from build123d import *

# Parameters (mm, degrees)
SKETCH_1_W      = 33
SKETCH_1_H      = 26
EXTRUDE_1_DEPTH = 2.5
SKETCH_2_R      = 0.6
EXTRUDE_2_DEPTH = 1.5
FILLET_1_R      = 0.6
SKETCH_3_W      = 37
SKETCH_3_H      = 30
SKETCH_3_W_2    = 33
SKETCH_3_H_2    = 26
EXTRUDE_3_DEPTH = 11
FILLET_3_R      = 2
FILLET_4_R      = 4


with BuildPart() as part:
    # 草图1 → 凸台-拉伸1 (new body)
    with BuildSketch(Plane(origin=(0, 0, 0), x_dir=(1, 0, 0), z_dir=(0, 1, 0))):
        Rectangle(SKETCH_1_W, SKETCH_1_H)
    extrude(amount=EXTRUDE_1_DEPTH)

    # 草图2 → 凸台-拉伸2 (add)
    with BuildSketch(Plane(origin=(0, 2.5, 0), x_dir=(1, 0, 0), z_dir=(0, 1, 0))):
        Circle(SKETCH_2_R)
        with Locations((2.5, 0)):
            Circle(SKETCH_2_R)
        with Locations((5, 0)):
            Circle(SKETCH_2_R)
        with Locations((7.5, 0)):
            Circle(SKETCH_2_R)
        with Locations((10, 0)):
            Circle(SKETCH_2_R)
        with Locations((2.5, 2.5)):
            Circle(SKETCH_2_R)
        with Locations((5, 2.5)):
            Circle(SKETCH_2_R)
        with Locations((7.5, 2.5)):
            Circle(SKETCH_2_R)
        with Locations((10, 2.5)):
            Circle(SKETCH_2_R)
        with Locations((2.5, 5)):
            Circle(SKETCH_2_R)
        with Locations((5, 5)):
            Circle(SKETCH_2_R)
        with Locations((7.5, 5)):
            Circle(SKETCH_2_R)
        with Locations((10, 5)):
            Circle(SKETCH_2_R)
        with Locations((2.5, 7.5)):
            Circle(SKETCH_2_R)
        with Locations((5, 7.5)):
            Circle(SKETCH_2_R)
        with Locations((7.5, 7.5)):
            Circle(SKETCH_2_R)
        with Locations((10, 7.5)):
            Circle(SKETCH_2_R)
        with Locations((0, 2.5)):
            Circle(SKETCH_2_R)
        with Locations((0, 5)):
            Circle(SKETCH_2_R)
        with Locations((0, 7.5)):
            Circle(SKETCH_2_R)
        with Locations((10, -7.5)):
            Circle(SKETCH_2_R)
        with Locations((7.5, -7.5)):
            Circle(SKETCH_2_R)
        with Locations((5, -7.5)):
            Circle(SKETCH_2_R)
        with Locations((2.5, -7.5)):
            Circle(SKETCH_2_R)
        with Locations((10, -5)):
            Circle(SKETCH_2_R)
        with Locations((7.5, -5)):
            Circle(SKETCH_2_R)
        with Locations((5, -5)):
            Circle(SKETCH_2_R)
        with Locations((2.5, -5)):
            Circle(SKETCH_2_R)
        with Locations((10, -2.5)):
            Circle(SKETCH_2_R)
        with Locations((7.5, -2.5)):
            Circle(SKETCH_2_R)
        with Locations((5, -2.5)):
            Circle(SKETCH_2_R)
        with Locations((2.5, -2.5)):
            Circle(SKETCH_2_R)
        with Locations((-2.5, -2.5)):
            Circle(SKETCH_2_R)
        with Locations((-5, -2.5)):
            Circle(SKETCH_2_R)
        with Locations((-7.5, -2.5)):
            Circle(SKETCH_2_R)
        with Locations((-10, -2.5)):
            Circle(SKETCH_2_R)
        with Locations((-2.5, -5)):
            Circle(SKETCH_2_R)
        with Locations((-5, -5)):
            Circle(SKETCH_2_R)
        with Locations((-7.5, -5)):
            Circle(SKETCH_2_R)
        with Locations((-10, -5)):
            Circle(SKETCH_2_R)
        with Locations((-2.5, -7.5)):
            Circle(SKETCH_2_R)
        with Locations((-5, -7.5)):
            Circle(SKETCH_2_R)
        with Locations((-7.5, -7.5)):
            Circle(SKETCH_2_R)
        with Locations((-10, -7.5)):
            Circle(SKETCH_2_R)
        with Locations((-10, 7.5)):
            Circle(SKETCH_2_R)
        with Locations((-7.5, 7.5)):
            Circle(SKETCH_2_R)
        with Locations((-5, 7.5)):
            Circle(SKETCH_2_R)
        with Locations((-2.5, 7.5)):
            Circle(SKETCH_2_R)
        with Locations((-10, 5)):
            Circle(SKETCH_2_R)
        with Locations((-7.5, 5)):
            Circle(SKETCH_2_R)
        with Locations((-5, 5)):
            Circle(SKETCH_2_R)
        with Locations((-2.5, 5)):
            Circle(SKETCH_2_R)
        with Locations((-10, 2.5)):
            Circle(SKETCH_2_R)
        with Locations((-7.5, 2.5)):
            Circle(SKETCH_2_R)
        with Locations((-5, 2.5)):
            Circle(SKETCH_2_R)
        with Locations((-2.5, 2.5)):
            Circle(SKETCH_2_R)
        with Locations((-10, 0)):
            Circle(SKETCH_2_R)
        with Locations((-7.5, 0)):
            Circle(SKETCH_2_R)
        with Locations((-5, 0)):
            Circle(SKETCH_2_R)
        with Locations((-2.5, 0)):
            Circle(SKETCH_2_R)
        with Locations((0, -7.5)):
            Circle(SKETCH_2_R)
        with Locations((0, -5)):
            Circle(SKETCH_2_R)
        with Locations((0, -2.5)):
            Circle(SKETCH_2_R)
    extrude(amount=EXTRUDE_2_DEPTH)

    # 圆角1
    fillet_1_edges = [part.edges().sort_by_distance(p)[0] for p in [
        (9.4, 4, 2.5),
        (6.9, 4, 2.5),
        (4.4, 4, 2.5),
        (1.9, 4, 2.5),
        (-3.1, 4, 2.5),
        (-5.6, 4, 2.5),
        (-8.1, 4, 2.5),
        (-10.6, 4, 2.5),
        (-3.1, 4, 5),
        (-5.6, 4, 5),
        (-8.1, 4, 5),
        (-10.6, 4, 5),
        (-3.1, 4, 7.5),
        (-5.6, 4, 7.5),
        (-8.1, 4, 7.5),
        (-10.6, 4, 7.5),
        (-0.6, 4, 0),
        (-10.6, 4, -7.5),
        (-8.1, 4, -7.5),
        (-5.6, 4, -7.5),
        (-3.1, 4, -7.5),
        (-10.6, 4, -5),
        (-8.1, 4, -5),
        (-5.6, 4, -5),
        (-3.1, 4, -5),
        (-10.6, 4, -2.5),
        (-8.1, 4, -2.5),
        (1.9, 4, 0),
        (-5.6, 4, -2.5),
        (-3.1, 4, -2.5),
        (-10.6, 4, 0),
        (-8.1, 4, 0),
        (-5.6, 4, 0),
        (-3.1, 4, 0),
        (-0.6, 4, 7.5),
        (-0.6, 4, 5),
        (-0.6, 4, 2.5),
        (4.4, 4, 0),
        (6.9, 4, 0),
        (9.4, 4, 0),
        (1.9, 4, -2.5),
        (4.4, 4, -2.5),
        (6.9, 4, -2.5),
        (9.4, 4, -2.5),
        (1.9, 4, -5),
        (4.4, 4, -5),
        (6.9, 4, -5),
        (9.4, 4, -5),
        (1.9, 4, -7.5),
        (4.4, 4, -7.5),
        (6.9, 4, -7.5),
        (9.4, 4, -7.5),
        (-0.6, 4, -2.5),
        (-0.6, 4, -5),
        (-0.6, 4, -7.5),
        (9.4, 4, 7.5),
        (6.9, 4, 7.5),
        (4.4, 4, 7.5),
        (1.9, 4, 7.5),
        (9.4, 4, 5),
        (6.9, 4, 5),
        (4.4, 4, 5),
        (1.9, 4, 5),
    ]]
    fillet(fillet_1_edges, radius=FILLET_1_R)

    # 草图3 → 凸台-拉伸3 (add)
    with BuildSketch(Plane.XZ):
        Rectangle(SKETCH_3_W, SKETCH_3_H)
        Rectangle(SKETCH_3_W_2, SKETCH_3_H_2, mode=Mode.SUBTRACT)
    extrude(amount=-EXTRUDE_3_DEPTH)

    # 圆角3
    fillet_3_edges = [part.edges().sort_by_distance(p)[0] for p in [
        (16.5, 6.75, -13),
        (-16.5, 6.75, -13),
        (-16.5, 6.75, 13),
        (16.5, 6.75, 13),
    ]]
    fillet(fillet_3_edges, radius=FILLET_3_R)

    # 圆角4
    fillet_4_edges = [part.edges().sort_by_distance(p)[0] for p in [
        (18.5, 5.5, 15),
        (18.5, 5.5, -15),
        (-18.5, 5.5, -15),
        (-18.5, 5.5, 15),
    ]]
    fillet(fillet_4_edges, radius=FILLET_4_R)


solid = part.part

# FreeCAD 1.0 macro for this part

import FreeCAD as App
import Part
import Sketcher
Q = App.Units.Quantity


def edges_at(feature, points):
    """Names of the edges that pass closest to the given points."""
    edges = feature.Shape.Edges
    near = lambda p: min(range(len(edges)), key=lambda i: edges[i].distToShape(Part.Vertex(*p))[0])
    return sorted({f"Edge{near(p) + 1}" for p in points})

doc = App.newDocument("Part")
body = doc.addObject("PartDesign::Body", "Body")

sketch1 = body.newObject("Sketcher::SketchObject", "Sketch")
sketch1.AttachmentSupport = (doc.getObject("XZ_Plane"), [""])
sketch1.MapMode = "FlatFace"
sketch1.addGeometry([
    Part.LineSegment(App.Vector(-16.5, -13, 0), App.Vector(-16.5, 13, 0)),
    Part.LineSegment(App.Vector(-16.5, 13, 0), App.Vector(16.5, 13, 0)),
    Part.LineSegment(App.Vector(16.5, 13, 0), App.Vector(16.5, -13, 0)),
    Part.LineSegment(App.Vector(16.5, -13, 0), App.Vector(-16.5, -13, 0)),
], False)
sketch1.addConstraint([
    Sketcher.Constraint("Coincident", 0, 2, 1, 1),
    Sketcher.Constraint("Coincident", 1, 2, 2, 1),
    Sketcher.Constraint("Coincident", 2, 2, 3, 1),
    Sketcher.Constraint("Coincident", 3, 2, 0, 1),
    Sketcher.Constraint("Vertical", 0),
    Sketcher.Constraint("Horizontal", 1),
    Sketcher.Constraint("Vertical", 2),
    Sketcher.Constraint("Horizontal", 3),
    Sketcher.Constraint("Symmetric", 0, 2, 2, 2, -1, 1),
    Sketcher.Constraint("DistanceX", 1, 1, 1, 2, Q("33 mm")),
    Sketcher.Constraint("DistanceY", 0, 1, 0, 2, Q("26 mm")),
])
pad1 = body.newObject("PartDesign::Pad", "Pad")
pad1.Profile = sketch1
pad1.Length = 2.5
pad1.Reversed = True

sketch2 = body.newObject("Sketcher::SketchObject", "Sketch001")
sketch2.AttachmentSupport = (doc.getObject("XZ_Plane"), [""])
sketch2.MapMode = "FlatFace"
sketch2.AttachmentOffset = App.Placement(App.Vector(0, 0, -2.5), App.Rotation())
sketch2.addGeometry([
    Part.Circle(App.Vector(0, 0, 0), App.Vector(0, 0, 1), 0.6),
    Part.Circle(App.Vector(2.5, 0, 0), App.Vector(0, 0, 1), 0.6),
    Part.Circle(App.Vector(5, 0, 0), App.Vector(0, 0, 1), 0.6),
    Part.Circle(App.Vector(7.5, 0, 0), App.Vector(0, 0, 1), 0.6),
    Part.Circle(App.Vector(10, 0, 0), App.Vector(0, 0, 1), 0.6),
    Part.Circle(App.Vector(2.5, -2.5, 0), App.Vector(0, 0, 1), 0.6),
    Part.Circle(App.Vector(5, -2.5, 0), App.Vector(0, 0, 1), 0.6),
    Part.Circle(App.Vector(7.5, -2.5, 0), App.Vector(0, 0, 1), 0.6),
    Part.Circle(App.Vector(10, -2.5, 0), App.Vector(0, 0, 1), 0.6),
    Part.Circle(App.Vector(2.5, -5, 0), App.Vector(0, 0, 1), 0.6),
    Part.Circle(App.Vector(5, -5, 0), App.Vector(0, 0, 1), 0.6),
    Part.Circle(App.Vector(7.5, -5, 0), App.Vector(0, 0, 1), 0.6),
    Part.Circle(App.Vector(10, -5, 0), App.Vector(0, 0, 1), 0.6),
    Part.Circle(App.Vector(2.5, -7.5, 0), App.Vector(0, 0, 1), 0.6),
    Part.Circle(App.Vector(5, -7.5, 0), App.Vector(0, 0, 1), 0.6),
    Part.Circle(App.Vector(7.5, -7.5, 0), App.Vector(0, 0, 1), 0.6),
    Part.Circle(App.Vector(10, -7.5, 0), App.Vector(0, 0, 1), 0.6),
    Part.Circle(App.Vector(0, -2.5, 0), App.Vector(0, 0, 1), 0.6),
    Part.Circle(App.Vector(0, -5, 0), App.Vector(0, 0, 1), 0.6),
    Part.Circle(App.Vector(0, -7.5, 0), App.Vector(0, 0, 1), 0.6),
    Part.Circle(App.Vector(10, 7.5, 0), App.Vector(0, 0, 1), 0.6),
    Part.Circle(App.Vector(7.5, 7.5, 0), App.Vector(0, 0, 1), 0.6),
    Part.Circle(App.Vector(5, 7.5, 0), App.Vector(0, 0, 1), 0.6),
    Part.Circle(App.Vector(2.5, 7.5, 0), App.Vector(0, 0, 1), 0.6),
    Part.Circle(App.Vector(10, 5, 0), App.Vector(0, 0, 1), 0.6),
    Part.Circle(App.Vector(7.5, 5, 0), App.Vector(0, 0, 1), 0.6),
    Part.Circle(App.Vector(5, 5, 0), App.Vector(0, 0, 1), 0.6),
    Part.Circle(App.Vector(2.5, 5, 0), App.Vector(0, 0, 1), 0.6),
    Part.Circle(App.Vector(10, 2.5, 0), App.Vector(0, 0, 1), 0.6),
    Part.Circle(App.Vector(7.5, 2.5, 0), App.Vector(0, 0, 1), 0.6),
    Part.Circle(App.Vector(5, 2.5, 0), App.Vector(0, 0, 1), 0.6),
    Part.Circle(App.Vector(2.5, 2.5, 0), App.Vector(0, 0, 1), 0.6),
    Part.Circle(App.Vector(-2.5, 2.5, 0), App.Vector(0, 0, 1), 0.6),
    Part.Circle(App.Vector(-5, 2.5, 0), App.Vector(0, 0, 1), 0.6),
    Part.Circle(App.Vector(-7.5, 2.5, 0), App.Vector(0, 0, 1), 0.6),
    Part.Circle(App.Vector(-10, 2.5, 0), App.Vector(0, 0, 1), 0.6),
    Part.Circle(App.Vector(-2.5, 5, 0), App.Vector(0, 0, 1), 0.6),
    Part.Circle(App.Vector(-5, 5, 0), App.Vector(0, 0, 1), 0.6),
    Part.Circle(App.Vector(-7.5, 5, 0), App.Vector(0, 0, 1), 0.6),
    Part.Circle(App.Vector(-10, 5, 0), App.Vector(0, 0, 1), 0.6),
    Part.Circle(App.Vector(-2.5, 7.5, 0), App.Vector(0, 0, 1), 0.6),
    Part.Circle(App.Vector(-5, 7.5, 0), App.Vector(0, 0, 1), 0.6),
    Part.Circle(App.Vector(-7.5, 7.5, 0), App.Vector(0, 0, 1), 0.6),
    Part.Circle(App.Vector(-10, 7.5, 0), App.Vector(0, 0, 1), 0.6),
    Part.Circle(App.Vector(-10, -7.5, 0), App.Vector(0, 0, 1), 0.6),
    Part.Circle(App.Vector(-7.5, -7.5, 0), App.Vector(0, 0, 1), 0.6),
    Part.Circle(App.Vector(-5, -7.5, 0), App.Vector(0, 0, 1), 0.6),
    Part.Circle(App.Vector(-2.5, -7.5, 0), App.Vector(0, 0, 1), 0.6),
    Part.Circle(App.Vector(-10, -5, 0), App.Vector(0, 0, 1), 0.6),
    Part.Circle(App.Vector(-7.5, -5, 0), App.Vector(0, 0, 1), 0.6),
    Part.Circle(App.Vector(-5, -5, 0), App.Vector(0, 0, 1), 0.6),
    Part.Circle(App.Vector(-2.5, -5, 0), App.Vector(0, 0, 1), 0.6),
    Part.Circle(App.Vector(-10, -2.5, 0), App.Vector(0, 0, 1), 0.6),
    Part.Circle(App.Vector(-7.5, -2.5, 0), App.Vector(0, 0, 1), 0.6),
    Part.Circle(App.Vector(-5, -2.5, 0), App.Vector(0, 0, 1), 0.6),
    Part.Circle(App.Vector(-2.5, -2.5, 0), App.Vector(0, 0, 1), 0.6),
    Part.Circle(App.Vector(-10, 0, 0), App.Vector(0, 0, 1), 0.6),
    Part.Circle(App.Vector(-7.5, 0, 0), App.Vector(0, 0, 1), 0.6),
    Part.Circle(App.Vector(-5, 0, 0), App.Vector(0, 0, 1), 0.6),
    Part.Circle(App.Vector(-2.5, 0, 0), App.Vector(0, 0, 1), 0.6),
    Part.Circle(App.Vector(0, 7.5, 0), App.Vector(0, 0, 1), 0.6),
    Part.Circle(App.Vector(0, 5, 0), App.Vector(0, 0, 1), 0.6),
    Part.Circle(App.Vector(0, 2.5, 0), App.Vector(0, 0, 1), 0.6),
], False)
sketch2.addConstraint([
    Sketcher.Constraint("Coincident", 0, 3, -1, 1),
    Sketcher.Constraint("Equal", 0, 1),
    Sketcher.Constraint("Equal", 1, 2),
    Sketcher.Constraint("Equal", 2, 3),
    Sketcher.Constraint("Equal", 3, 4),
    Sketcher.Constraint("Equal", 4, 5),
    Sketcher.Constraint("Equal", 5, 6),
    Sketcher.Constraint("Equal", 6, 7),
    Sketcher.Constraint("Equal", 7, 8),
    Sketcher.Constraint("Equal", 8, 9),
    Sketcher.Constraint("Equal", 9, 10),
    Sketcher.Constraint("Equal", 10, 11),
    Sketcher.Constraint("Equal", 11, 12),
    Sketcher.Constraint("Equal", 12, 13),
    Sketcher.Constraint("Equal", 13, 14),
    Sketcher.Constraint("Equal", 14, 15),
    Sketcher.Constraint("Equal", 15, 16),
    Sketcher.Constraint("Equal", 16, 17),
    Sketcher.Constraint("Equal", 17, 18),
    Sketcher.Constraint("Equal", 18, 19),
    Sketcher.Constraint("Equal", 19, 20),
    Sketcher.Constraint("Equal", 20, 21),
    Sketcher.Constraint("Equal", 21, 22),
    Sketcher.Constraint("Equal", 22, 23),
    Sketcher.Constraint("Equal", 23, 24),
    Sketcher.Constraint("Equal", 24, 25),
    Sketcher.Constraint("Equal", 25, 26),
    Sketcher.Constraint("Equal", 26, 27),
    Sketcher.Constraint("Equal", 27, 28),
    Sketcher.Constraint("Equal", 28, 29),
    Sketcher.Constraint("Equal", 29, 30),
    Sketcher.Constraint("Equal", 30, 31),
    Sketcher.Constraint("Equal", 31, 32),
    Sketcher.Constraint("Equal", 32, 33),
    Sketcher.Constraint("Equal", 33, 34),
    Sketcher.Constraint("Equal", 34, 35),
    Sketcher.Constraint("Equal", 35, 36),
    Sketcher.Constraint("Equal", 36, 37),
    Sketcher.Constraint("Equal", 37, 38),
    Sketcher.Constraint("Equal", 38, 39),
    Sketcher.Constraint("Equal", 39, 40),
    Sketcher.Constraint("Equal", 40, 41),
    Sketcher.Constraint("Equal", 41, 42),
    Sketcher.Constraint("Equal", 42, 43),
    Sketcher.Constraint("Equal", 43, 44),
    Sketcher.Constraint("Equal", 44, 45),
    Sketcher.Constraint("Equal", 45, 46),
    Sketcher.Constraint("Equal", 46, 47),
    Sketcher.Constraint("Equal", 47, 48),
    Sketcher.Constraint("Equal", 48, 49),
    Sketcher.Constraint("Equal", 49, 50),
    Sketcher.Constraint("Equal", 50, 51),
    Sketcher.Constraint("Equal", 51, 52),
    Sketcher.Constraint("Equal", 52, 53),
    Sketcher.Constraint("Equal", 53, 54),
    Sketcher.Constraint("Equal", 54, 55),
    Sketcher.Constraint("Equal", 55, 56),
    Sketcher.Constraint("Equal", 56, 57),
    Sketcher.Constraint("Equal", 57, 58),
    Sketcher.Constraint("Equal", 58, 59),
    Sketcher.Constraint("Equal", 59, 60),
    Sketcher.Constraint("Equal", 60, 61),
    Sketcher.Constraint("Equal", 61, 62),
    Sketcher.Constraint("Symmetric", 5, 3, 32, 3, -1, 1),
    Sketcher.Constraint("Symmetric", 6, 3, 33, 3, -1, 1),
    Sketcher.Constraint("Symmetric", 7, 3, 34, 3, -1, 1),
    Sketcher.Constraint("Symmetric", 8, 3, 35, 3, -1, 1),
    Sketcher.Constraint("Symmetric", 9, 3, 36, 3, -1, 1),
    Sketcher.Constraint("Symmetric", 10, 3, 37, 3, -1, 1),
    Sketcher.Constraint("Symmetric", 11, 3, 38, 3, -1, 1),
    Sketcher.Constraint("Symmetric", 12, 3, 39, 3, -1, 1),
    Sketcher.Constraint("Symmetric", 13, 3, 40, 3, -1, 1),
    Sketcher.Constraint("Symmetric", 14, 3, 41, 3, -1, 1),
    Sketcher.Constraint("Symmetric", 15, 3, 42, 3, -1, 1),
    Sketcher.Constraint("Symmetric", 16, 3, 43, 3, -1, 1),
    Sketcher.Constraint("Symmetric", 20, 3, 44, 3, -1, 1),
    Sketcher.Constraint("Symmetric", 21, 3, 45, 3, -1, 1),
    Sketcher.Constraint("Symmetric", 22, 3, 46, 3, -1, 1),
    Sketcher.Constraint("Symmetric", 23, 3, 47, 3, -1, 1),
    Sketcher.Constraint("Symmetric", 24, 3, 48, 3, -1, 1),
    Sketcher.Constraint("Symmetric", 25, 3, 49, 3, -1, 1),
    Sketcher.Constraint("Symmetric", 26, 3, 50, 3, -1, 1),
    Sketcher.Constraint("Symmetric", 27, 3, 51, 3, -1, 1),
    Sketcher.Constraint("Symmetric", 28, 3, 52, 3, -1, 1),
    Sketcher.Constraint("Symmetric", 29, 3, 53, 3, -1, 1),
    Sketcher.Constraint("Symmetric", 30, 3, 54, 3, -1, 1),
    Sketcher.Constraint("Symmetric", 31, 3, 55, 3, -1, 1),
    Sketcher.Constraint("Symmetric", 4, 3, 56, 3, -1, 1),
    Sketcher.Constraint("Symmetric", 3, 3, 57, 3, -1, 1),
    Sketcher.Constraint("Symmetric", 2, 3, 58, 3, -1, 1),
    Sketcher.Constraint("Symmetric", 1, 3, 59, 3, -1, 1),
    Sketcher.Constraint("Symmetric", 19, 3, 60, 3, -1, 1),
    Sketcher.Constraint("Symmetric", 18, 3, 61, 3, -1, 1),
    Sketcher.Constraint("Symmetric", 17, 3, 62, 3, -1, 1),
    Sketcher.Constraint("Symmetric", 31, 3, 32, 3, -2),
    Sketcher.Constraint("Symmetric", 30, 3, 33, 3, -2),
    Sketcher.Constraint("Symmetric", 29, 3, 34, 3, -2),
    Sketcher.Constraint("Symmetric", 28, 3, 35, 3, -2),
    Sketcher.Constraint("Symmetric", 27, 3, 36, 3, -2),
    Sketcher.Constraint("Symmetric", 26, 3, 37, 3, -2),
    Sketcher.Constraint("Symmetric", 25, 3, 38, 3, -2),
    Sketcher.Constraint("Symmetric", 24, 3, 39, 3, -2),
    Sketcher.Constraint("Symmetric", 23, 3, 40, 3, -2),
    Sketcher.Constraint("Symmetric", 22, 3, 41, 3, -2),
    Sketcher.Constraint("Symmetric", 21, 3, 42, 3, -2),
    Sketcher.Constraint("Symmetric", 20, 3, 43, 3, -2),
    Sketcher.Constraint("PointOnObject", 1, 3, -1),
    Sketcher.Constraint("PointOnObject", 2, 3, -1),
    Sketcher.Constraint("PointOnObject", 3, 3, -1),
    Sketcher.Constraint("PointOnObject", 4, 3, -1),
    Sketcher.Constraint("PointOnObject", 17, 3, -2),
    Sketcher.Constraint("PointOnObject", 18, 3, -2),
    Sketcher.Constraint("PointOnObject", 19, 3, -2),
    Sketcher.Constraint("Horizontal", 5, 3, 6, 3),
    Sketcher.Constraint("Horizontal", 6, 3, 7, 3),
    Sketcher.Constraint("Horizontal", 7, 3, 8, 3),
    Sketcher.Constraint("Horizontal", 9, 3, 10, 3),
    Sketcher.Constraint("Horizontal", 10, 3, 11, 3),
    Sketcher.Constraint("Horizontal", 11, 3, 12, 3),
    Sketcher.Constraint("Horizontal", 13, 3, 14, 3),
    Sketcher.Constraint("Horizontal", 14, 3, 15, 3),
    Sketcher.Constraint("Horizontal", 15, 3, 16, 3),
    Sketcher.Constraint("Horizontal", 8, 3, 17, 3),
    Sketcher.Constraint("Horizontal", 12, 3, 18, 3),
    Sketcher.Constraint("Horizontal", 16, 3, 19, 3),
    Sketcher.Constraint("Vertical", 1, 3, 5, 3),
    Sketcher.Constraint("Vertical", 2, 3, 6, 3),
    Sketcher.Constraint("Vertical", 3, 3, 7, 3),
    Sketcher.Constraint("Vertical", 4, 3, 8, 3),
    Sketcher.Constraint("Vertical", 5, 3, 9, 3),
    Sketcher.Constraint("Vertical", 6, 3, 10, 3),
    Sketcher.Constraint("Vertical", 7, 3, 11, 3),
    Sketcher.Constraint("Vertical", 8, 3, 12, 3),
    Sketcher.Constraint("Vertical", 9, 3, 13, 3),
    Sketcher.Constraint("Vertical", 10, 3, 14, 3),
    Sketcher.Constraint("Vertical", 11, 3, 15, 3),
    Sketcher.Constraint("Vertical", 12, 3, 16, 3),
    Sketcher.Constraint("Diameter", 0, Q("1.2 mm")),
    Sketcher.Constraint("DistanceX", -1, 1, 2, 3, Q("5 mm")),
    Sketcher.Constraint("DistanceX", -1, 1, 4, 3, Q("10 mm")),
    Sketcher.Constraint("DistanceY", 9, 3, -1, 1, Q("5 mm")),
    Sketcher.Constraint("DistanceX", -1, 1, 1, 3, Q("2.5 mm")),
    Sketcher.Constraint("DistanceX", -1, 1, 3, 3, Q("7.5 mm")),
    Sketcher.Constraint("DistanceY", 5, 3, -1, 1, Q("2.5 mm")),
    Sketcher.Constraint("DistanceY", 13, 3, -1, 1, Q("7.5 mm")),
])
pad2 = body.newObject("PartDesign::Pad", "Pad001")
pad2.Profile = sketch2
pad2.Length = 1.5
pad2.Reversed = True
doc.recompute()

fillet = body.newObject("PartDesign::Fillet", "Fillet")
fillet.Base = (pad2, edges_at(pad2, [
    (9.4, 4, 2.5),
    (6.9, 4, 2.5),
    (4.4, 4, 2.5),
    (1.9, 4, 2.5),
    (-3.1, 4, 2.5),
    (-5.6, 4, 2.5),
    (-8.1, 4, 2.5),
    (-10.6, 4, 2.5),
    (-3.1, 4, 5),
    (-5.6, 4, 5),
    (-8.1, 4, 5),
    (-10.6, 4, 5),
    (-3.1, 4, 7.5),
    (-5.6, 4, 7.5),
    (-8.1, 4, 7.5),
    (-10.6, 4, 7.5),
    (-0.6, 4, 0),
    (-10.6, 4, -7.5),
    (-8.1, 4, -7.5),
    (-5.6, 4, -7.5),
    (-3.1, 4, -7.5),
    (-10.6, 4, -5),
    (-8.1, 4, -5),
    (-5.6, 4, -5),
    (-3.1, 4, -5),
    (-10.6, 4, -2.5),
    (-8.1, 4, -2.5),
    (1.9, 4, 0),
    (-5.6, 4, -2.5),
    (-3.1, 4, -2.5),
    (-10.6, 4, 0),
    (-8.1, 4, 0),
    (-5.6, 4, 0),
    (-3.1, 4, 0),
    (-0.6, 4, 7.5),
    (-0.6, 4, 5),
    (-0.6, 4, 2.5),
    (4.4, 4, 0),
    (6.9, 4, 0),
    (9.4, 4, 0),
    (1.9, 4, -2.5),
    (4.4, 4, -2.5),
    (6.9, 4, -2.5),
    (9.4, 4, -2.5),
    (1.9, 4, -5),
    (4.4, 4, -5),
    (6.9, 4, -5),
    (9.4, 4, -5),
    (1.9, 4, -7.5),
    (4.4, 4, -7.5),
    (6.9, 4, -7.5),
    (9.4, 4, -7.5),
    (-0.6, 4, -2.5),
    (-0.6, 4, -5),
    (-0.6, 4, -7.5),
    (9.4, 4, 7.5),
    (6.9, 4, 7.5),
    (4.4, 4, 7.5),
    (1.9, 4, 7.5),
    (9.4, 4, 5),
    (6.9, 4, 5),
    (4.4, 4, 5),
    (1.9, 4, 5),
]))
fillet.Radius = 0.6

sketch3 = body.newObject("Sketcher::SketchObject", "Sketch002")
sketch3.AttachmentSupport = (doc.getObject("XZ_Plane"), [""])
sketch3.MapMode = "FlatFace"
sketch3.addGeometry([
    Part.LineSegment(App.Vector(-18.5, 15, 0), App.Vector(-18.5, -15, 0)),
    Part.LineSegment(App.Vector(-18.5, -15, 0), App.Vector(18.5, -15, 0)),
    Part.LineSegment(App.Vector(18.5, -15, 0), App.Vector(18.5, 15, 0)),
    Part.LineSegment(App.Vector(18.5, 15, 0), App.Vector(-18.5, 15, 0)),
    Part.LineSegment(App.Vector(16.5, -13, 0), App.Vector(-16.5, -13, 0)),
    Part.LineSegment(App.Vector(-16.5, -13, 0), App.Vector(-16.5, 13, 0)),
    Part.LineSegment(App.Vector(-16.5, 13, 0), App.Vector(16.5, 13, 0)),
    Part.LineSegment(App.Vector(16.5, 13, 0), App.Vector(16.5, -13, 0)),
], False)
sketch3.addConstraint([
    Sketcher.Constraint("Coincident", 0, 2, 1, 1),
    Sketcher.Constraint("Coincident", 1, 2, 2, 1),
    Sketcher.Constraint("Coincident", 2, 2, 3, 1),
    Sketcher.Constraint("Coincident", 3, 2, 0, 1),
    Sketcher.Constraint("Coincident", 4, 2, 5, 1),
    Sketcher.Constraint("Coincident", 5, 2, 6, 1),
    Sketcher.Constraint("Coincident", 6, 2, 7, 1),
    Sketcher.Constraint("Coincident", 7, 2, 4, 1),
    Sketcher.Constraint("Vertical", 0),
    Sketcher.Constraint("Horizontal", 1),
    Sketcher.Constraint("Vertical", 2),
    Sketcher.Constraint("Horizontal", 3),
    Sketcher.Constraint("Horizontal", 4),
    Sketcher.Constraint("Vertical", 5),
    Sketcher.Constraint("Horizontal", 6),
    Sketcher.Constraint("Vertical", 7),
    Sketcher.Constraint("Symmetric", 0, 2, 2, 2, -1, 1),
    Sketcher.Constraint("Symmetric", 4, 2, 6, 2, -1, 1),
    Sketcher.Constraint("DistanceX", 1, 1, 1, 2, Q("37 mm")),
    Sketcher.Constraint("DistanceX", 4, 2, 4, 1, Q("33 mm")),
    Sketcher.Constraint("DistanceY", 0, 2, 0, 1, Q("30 mm")),
    Sketcher.Constraint("DistanceY", 5, 1, 5, 2, Q("26 mm")),
])
pad3 = body.newObject("PartDesign::Pad", "Pad002")
pad3.Profile = sketch3
pad3.Length = 11
pad3.Reversed = True
doc.recompute()

fillet2 = body.newObject("PartDesign::Fillet", "Fillet001")
fillet2.Base = (pad3, edges_at(pad3, [
    (16.5, 6.75, -13),
    (-16.5, 6.75, -13),
    (-16.5, 6.75, 13),
    (16.5, 6.75, 13),
]))
fillet2.Radius = 2
doc.recompute()

fillet3 = body.newObject("PartDesign::Fillet", "Fillet002")
fillet3.Base = (fillet2, edges_at(fillet2, [
    (18.5, 5.5, 15),
    (18.5, 5.5, -15),
    (-18.5, 5.5, -15),
    (-18.5, 5.5, 15),
]))
fillet3.Radius = 4

doc.recompute()
